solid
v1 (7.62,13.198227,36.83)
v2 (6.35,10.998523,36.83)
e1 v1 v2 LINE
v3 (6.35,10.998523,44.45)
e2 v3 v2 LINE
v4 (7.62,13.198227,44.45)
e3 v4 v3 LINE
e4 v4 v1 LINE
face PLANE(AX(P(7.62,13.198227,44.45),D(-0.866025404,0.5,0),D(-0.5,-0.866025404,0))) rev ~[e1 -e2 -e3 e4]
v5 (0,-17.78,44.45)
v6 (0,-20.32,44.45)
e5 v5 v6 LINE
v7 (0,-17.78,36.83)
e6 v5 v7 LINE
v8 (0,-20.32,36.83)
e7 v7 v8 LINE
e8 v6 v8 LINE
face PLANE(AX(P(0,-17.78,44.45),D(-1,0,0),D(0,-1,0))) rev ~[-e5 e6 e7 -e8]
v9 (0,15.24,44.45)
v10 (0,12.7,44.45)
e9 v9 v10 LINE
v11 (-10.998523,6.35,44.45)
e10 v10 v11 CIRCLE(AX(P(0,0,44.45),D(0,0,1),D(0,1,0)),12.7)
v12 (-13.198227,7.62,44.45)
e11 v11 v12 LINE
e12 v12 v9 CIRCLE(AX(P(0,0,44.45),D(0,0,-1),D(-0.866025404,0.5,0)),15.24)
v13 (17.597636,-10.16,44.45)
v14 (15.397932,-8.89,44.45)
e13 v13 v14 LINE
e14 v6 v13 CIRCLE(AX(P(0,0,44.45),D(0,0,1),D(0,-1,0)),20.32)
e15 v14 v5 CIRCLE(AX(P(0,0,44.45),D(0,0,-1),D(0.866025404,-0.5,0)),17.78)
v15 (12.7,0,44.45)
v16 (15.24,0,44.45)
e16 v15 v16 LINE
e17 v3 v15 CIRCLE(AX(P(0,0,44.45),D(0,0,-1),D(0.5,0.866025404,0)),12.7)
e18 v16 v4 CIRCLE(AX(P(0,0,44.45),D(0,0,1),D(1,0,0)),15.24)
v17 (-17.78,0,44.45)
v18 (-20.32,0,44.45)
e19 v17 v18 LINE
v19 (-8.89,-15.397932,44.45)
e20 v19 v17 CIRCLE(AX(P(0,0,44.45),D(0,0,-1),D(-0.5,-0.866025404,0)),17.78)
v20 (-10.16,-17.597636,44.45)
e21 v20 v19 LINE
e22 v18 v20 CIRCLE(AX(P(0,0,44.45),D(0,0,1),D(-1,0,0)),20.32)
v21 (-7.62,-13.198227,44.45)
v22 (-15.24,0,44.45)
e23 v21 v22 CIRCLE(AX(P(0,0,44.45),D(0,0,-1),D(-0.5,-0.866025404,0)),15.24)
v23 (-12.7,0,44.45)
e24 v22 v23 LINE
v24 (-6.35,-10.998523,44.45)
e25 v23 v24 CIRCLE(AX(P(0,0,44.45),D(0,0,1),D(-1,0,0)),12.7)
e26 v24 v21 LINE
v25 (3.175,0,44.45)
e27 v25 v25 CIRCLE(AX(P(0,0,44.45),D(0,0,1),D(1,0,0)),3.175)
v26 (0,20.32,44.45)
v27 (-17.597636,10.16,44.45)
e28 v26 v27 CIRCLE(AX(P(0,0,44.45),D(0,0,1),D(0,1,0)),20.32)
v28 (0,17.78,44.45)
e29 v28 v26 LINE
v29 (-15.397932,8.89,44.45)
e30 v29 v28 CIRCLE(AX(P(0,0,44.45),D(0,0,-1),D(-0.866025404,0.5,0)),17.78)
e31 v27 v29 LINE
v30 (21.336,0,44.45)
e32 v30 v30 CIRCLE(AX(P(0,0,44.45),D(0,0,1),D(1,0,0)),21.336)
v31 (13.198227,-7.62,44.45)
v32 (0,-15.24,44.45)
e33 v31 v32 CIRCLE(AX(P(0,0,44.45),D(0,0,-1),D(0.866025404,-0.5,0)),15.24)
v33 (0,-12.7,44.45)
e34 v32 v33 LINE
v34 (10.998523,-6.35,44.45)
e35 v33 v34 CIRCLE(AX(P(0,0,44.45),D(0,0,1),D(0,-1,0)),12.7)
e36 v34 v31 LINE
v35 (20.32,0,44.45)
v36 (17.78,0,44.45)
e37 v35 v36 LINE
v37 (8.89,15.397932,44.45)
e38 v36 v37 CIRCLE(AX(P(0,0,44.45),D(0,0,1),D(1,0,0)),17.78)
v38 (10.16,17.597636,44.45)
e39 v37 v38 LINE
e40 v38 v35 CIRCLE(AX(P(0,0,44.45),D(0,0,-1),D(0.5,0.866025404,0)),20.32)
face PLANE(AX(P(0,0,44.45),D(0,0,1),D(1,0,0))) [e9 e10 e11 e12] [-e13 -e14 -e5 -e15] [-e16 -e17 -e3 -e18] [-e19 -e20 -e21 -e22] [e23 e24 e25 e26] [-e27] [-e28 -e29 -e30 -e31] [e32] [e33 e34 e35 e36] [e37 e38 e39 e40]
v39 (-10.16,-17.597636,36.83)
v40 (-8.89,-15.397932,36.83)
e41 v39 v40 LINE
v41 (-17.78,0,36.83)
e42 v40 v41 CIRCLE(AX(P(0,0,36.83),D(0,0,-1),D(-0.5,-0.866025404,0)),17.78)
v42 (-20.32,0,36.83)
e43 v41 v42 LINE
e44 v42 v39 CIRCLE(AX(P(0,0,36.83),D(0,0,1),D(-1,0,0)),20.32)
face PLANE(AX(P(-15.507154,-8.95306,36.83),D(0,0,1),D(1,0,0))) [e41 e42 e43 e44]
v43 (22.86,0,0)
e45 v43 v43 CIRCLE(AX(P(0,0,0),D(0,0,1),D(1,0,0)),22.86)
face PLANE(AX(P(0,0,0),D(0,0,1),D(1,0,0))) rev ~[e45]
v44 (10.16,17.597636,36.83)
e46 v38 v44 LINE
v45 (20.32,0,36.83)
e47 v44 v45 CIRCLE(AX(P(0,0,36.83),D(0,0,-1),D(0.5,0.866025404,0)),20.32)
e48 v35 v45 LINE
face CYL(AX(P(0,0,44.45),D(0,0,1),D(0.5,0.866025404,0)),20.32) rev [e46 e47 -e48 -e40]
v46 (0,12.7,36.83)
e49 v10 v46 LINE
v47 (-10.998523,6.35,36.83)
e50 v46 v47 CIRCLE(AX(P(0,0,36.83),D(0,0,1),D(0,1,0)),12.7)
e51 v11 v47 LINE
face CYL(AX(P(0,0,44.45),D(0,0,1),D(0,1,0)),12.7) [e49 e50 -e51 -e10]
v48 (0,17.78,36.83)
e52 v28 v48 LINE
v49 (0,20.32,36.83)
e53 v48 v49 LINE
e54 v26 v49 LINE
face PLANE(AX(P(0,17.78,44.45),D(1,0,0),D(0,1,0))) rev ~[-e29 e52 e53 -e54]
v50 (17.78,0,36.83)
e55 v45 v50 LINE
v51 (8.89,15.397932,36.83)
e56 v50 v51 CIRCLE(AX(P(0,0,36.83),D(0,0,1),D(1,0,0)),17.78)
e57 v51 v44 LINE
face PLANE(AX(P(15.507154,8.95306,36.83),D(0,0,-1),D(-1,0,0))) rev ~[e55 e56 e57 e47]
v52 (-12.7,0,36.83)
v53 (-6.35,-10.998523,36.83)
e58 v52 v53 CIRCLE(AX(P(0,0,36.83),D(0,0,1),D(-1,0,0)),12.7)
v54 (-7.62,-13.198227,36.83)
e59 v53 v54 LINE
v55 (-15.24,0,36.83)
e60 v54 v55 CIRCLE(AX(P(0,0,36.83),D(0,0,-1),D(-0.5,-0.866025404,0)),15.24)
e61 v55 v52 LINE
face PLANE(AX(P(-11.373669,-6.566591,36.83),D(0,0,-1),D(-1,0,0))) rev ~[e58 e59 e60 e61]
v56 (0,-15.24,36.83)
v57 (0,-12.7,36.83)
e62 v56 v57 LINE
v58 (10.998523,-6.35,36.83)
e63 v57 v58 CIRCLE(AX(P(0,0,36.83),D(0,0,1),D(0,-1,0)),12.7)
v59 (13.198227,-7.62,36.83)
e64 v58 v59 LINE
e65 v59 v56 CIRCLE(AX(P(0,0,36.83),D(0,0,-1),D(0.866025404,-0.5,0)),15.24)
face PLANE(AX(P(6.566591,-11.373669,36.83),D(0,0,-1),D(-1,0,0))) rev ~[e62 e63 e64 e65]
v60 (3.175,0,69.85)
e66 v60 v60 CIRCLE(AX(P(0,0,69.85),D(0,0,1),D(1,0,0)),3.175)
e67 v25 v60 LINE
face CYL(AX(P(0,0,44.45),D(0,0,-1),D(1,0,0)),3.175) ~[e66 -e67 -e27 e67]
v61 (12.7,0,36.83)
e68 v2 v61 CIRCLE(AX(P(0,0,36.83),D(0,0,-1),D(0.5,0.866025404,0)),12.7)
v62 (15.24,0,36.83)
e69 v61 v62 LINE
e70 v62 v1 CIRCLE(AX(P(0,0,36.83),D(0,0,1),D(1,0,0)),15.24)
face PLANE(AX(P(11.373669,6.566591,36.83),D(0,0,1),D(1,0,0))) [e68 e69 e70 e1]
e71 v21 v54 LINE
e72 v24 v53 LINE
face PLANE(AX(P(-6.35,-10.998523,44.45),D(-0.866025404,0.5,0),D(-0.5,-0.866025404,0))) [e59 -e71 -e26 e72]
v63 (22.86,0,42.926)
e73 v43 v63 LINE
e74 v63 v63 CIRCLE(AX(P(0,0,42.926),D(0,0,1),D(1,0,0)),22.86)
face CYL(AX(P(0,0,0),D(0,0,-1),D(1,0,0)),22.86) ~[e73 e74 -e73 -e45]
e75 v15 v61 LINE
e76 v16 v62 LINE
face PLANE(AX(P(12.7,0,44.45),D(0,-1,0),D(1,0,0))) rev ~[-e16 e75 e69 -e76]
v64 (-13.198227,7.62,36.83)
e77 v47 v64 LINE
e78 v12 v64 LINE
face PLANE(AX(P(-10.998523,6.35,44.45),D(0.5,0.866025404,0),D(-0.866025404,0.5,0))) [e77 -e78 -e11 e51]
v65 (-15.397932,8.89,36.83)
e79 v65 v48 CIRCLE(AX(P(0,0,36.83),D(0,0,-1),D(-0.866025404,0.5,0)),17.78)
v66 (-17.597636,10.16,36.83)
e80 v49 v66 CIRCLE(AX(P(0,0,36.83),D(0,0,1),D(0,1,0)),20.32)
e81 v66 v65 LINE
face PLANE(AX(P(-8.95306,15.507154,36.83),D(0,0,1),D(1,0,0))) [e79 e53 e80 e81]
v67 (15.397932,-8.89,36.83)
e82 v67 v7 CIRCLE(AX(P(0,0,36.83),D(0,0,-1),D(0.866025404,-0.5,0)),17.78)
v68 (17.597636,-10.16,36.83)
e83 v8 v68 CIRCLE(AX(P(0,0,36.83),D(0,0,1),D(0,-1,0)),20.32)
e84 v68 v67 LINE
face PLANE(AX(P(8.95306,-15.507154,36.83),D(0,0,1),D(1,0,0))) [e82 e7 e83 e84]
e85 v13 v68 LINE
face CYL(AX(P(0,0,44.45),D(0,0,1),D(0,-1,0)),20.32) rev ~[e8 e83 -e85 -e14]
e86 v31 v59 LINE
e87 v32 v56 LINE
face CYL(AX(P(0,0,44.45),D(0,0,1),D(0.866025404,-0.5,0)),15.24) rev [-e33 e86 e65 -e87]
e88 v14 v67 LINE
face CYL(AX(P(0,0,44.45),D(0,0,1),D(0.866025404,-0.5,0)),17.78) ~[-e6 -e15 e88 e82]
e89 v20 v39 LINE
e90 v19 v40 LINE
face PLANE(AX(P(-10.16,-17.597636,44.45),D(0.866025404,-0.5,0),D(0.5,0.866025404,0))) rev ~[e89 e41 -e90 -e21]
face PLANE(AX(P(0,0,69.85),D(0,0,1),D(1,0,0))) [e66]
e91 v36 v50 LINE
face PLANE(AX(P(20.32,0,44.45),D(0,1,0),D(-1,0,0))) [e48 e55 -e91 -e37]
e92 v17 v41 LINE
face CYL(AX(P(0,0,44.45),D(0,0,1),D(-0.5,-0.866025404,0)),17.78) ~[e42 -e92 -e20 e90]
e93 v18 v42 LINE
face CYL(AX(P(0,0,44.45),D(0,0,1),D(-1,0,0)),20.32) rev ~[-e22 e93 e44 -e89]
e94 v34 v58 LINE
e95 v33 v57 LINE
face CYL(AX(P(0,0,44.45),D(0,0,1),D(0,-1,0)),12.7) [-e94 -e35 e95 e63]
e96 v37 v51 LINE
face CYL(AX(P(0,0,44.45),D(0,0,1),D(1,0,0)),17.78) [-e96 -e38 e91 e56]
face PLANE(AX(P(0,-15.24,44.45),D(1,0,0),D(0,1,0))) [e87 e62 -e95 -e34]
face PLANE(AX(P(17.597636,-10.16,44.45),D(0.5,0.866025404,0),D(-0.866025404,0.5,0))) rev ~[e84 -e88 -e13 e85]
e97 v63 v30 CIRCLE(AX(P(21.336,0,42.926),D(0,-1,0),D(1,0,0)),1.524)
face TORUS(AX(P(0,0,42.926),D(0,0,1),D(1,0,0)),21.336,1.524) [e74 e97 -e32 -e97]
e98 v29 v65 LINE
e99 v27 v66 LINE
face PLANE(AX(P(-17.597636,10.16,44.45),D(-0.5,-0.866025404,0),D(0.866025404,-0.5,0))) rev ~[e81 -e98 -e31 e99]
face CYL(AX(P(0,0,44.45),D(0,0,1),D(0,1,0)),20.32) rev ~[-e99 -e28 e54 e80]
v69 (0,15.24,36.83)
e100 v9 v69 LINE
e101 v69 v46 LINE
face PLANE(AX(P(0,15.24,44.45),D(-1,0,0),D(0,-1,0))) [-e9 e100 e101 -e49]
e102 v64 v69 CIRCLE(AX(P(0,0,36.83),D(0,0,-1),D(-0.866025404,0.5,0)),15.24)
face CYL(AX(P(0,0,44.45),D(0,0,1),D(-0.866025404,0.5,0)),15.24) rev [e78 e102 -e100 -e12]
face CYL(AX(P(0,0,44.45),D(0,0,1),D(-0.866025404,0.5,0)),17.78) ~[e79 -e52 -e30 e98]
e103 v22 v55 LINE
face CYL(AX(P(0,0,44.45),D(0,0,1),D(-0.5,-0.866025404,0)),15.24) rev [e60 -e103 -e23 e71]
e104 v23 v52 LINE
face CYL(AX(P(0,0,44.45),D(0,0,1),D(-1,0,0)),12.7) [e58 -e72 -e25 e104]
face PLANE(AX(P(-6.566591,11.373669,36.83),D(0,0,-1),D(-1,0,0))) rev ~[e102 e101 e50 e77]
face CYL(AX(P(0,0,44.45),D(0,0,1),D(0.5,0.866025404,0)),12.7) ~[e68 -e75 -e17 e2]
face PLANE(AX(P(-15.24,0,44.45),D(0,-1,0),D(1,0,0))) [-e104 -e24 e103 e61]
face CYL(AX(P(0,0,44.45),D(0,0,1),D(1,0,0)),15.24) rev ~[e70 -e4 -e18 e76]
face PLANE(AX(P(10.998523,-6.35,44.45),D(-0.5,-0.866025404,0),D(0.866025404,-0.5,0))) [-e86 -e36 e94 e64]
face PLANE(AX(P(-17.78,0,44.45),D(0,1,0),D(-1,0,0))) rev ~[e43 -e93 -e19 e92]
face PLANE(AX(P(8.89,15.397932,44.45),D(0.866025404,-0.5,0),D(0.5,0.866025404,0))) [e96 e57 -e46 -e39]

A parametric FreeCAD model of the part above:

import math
import FreeCAD as App
import Part
import Sketcher
Q = App.Units.Quantity


def edges_at(feature, points):
    """Names of the edges that pass closest to the given points."""
    edges = feature.Shape.Edges
    near = lambda p: min(range(len(edges)), key=lambda i: edges[i].distToShape(Part.Vertex(*p))[0])
    return sorted({f"Edge{near(p) + 1}" for p in points})

doc = App.newDocument("Part")
body = doc.addObject("PartDesign::Body", "Body")

sketch1 = doc.addObject("Sketcher::SketchObject", "Sketch")
body.addObject(sketch1)
sketch1.AttachmentSupport = (doc.XY_Plane, [""])
sketch1.MapMode = "FlatFace"
sketch1.addGeometry(Part.Circle(App.Vector(0, 0, 0), App.Vector(0, 0, 1), 22.86), False)
sketch1.addConstraint([
    Sketcher.Constraint("Coincident", 0, 3, -1, 1),
    Sketcher.Constraint("Diameter", 0, Q("1.8 in")),
])
pad1 = doc.addObject("PartDesign::Pad", "Pad")
body.addObject(pad1)
pad1.Profile = sketch1
pad1.Length = Q("1.75 in")

sketch2 = doc.addObject("Sketcher::SketchObject", "Sketch001")
body.addObject(sketch2)
sketch2.AttachmentSupport = (doc.XY_Plane, [""])
sketch2.MapMode = "FlatFace"
sketch2.AttachmentOffset = App.Placement(App.Vector(0, 0, 1.75 * 25.4), App.Rotation())
sketch2.addGeometry(Part.Circle(App.Vector(0, 0, 0), App.Vector(0, 0, 1), 3.175), False)
sketch2.addConstraint([
    Sketcher.Constraint("Coincident", 0, 3, -1, 1),
    Sketcher.Constraint("Diameter", 0, Q("0.25 in")),
])
pad2 = doc.addObject("PartDesign::Pad", "Pad001")
body.addObject(pad2)
pad2.Profile = sketch2
pad2.Length = Q("1 in")

sketch3 = doc.addObject("Sketcher::SketchObject", "Sketch002")
body.addObject(sketch3)
sketch3.AttachmentSupport = (doc.XY_Plane, [""])
sketch3.MapMode = "FlatFace"
sketch3.AttachmentOffset = App.Placement(App.Vector(0, 0, 1.75 * 25.4), App.Rotation())
sketch3.addGeometry([
    Part.LineSegment(App.Vector(12.7, 0, 0), App.Vector(15.24, 0, 0)),
    Part.ArcOfCircle(Part.Circle(App.Vector(0, 0, 0), App.Vector(0, 0, 1), 15.24), math.radians(0), math.radians(60)),
    Part.LineSegment(App.Vector(7.62, 13.198227, 0), App.Vector(6.35, 10.998523, 0)),
    Part.ArcOfCircle(Part.Circle(App.Vector(0, 0, 0), App.Vector(0, 0, 1), 12.7), math.radians(0), math.radians(60)),
    Part.LineSegment(App.Vector(10.16, 17.597636, 0), App.Vector(8.89, 15.397932, 0)),
    Part.ArcOfCircle(Part.Circle(App.Vector(0, 0, 0), App.Vector(0, 0, 1), 17.78), math.radians(0), math.radians(60)),
    Part.LineSegment(App.Vector(17.78, 0, 0), App.Vector(20.32, 0, 0)),
    Part.ArcOfCircle(Part.Circle(App.Vector(0, 0, 0), App.Vector(0, 0, 1), 20.32), math.radians(0), math.radians(60)),
    Part.LineSegment(App.Vector(13.198227, -7.62, 0), App.Vector(10.998523, -6.35, 0)),
    Part.ArcOfCircle(Part.Circle(App.Vector(0, 0, 0), App.Vector(0, 0, 1), 12.7), math.radians(-90), math.radians(-30)),
    Part.LineSegment(App.Vector(0, -12.7, 0), App.Vector(0, -15.24, 0)),
    Part.ArcOfCircle(Part.Circle(App.Vector(0, 0, 0), App.Vector(0, 0, 1), 15.24), math.radians(-90), math.radians(-30)),
    Part.LineSegment(App.Vector(0, -17.78, 0), App.Vector(0, -20.32, 0)),
    Part.ArcOfCircle(Part.Circle(App.Vector(0, 0, 0), App.Vector(0, 0, 1), 20.32), math.radians(-90), math.radians(-30)),
    Part.LineSegment(App.Vector(17.597636, -10.16, 0), App.Vector(15.397932, -8.89, 0)),
    Part.ArcOfCircle(Part.Circle(App.Vector(0, 0, 0), App.Vector(0, 0, 1), 17.78), math.radians(-90), math.radians(-30)),
    Part.LineSegment(App.Vector(-7.62, -13.198227, 0), App.Vector(-6.35, -10.998523, 0)),
    Part.ArcOfCircle(Part.Circle(App.Vector(0, 0, 0), App.Vector(0, 0, 1), 12.7), math.radians(180), math.radians(240)),
    Part.LineSegment(App.Vector(-12.7, 0, 0), App.Vector(-15.24, 0, 0)),
    Part.ArcOfCircle(Part.Circle(App.Vector(0, 0, 0), App.Vector(0, 0, 1), 15.24), math.radians(180), math.radians(240)),
    Part.LineSegment(App.Vector(-17.78, 0, 0), App.Vector(-20.32, 0, 0)),
    Part.ArcOfCircle(Part.Circle(App.Vector(0, 0, 0), App.Vector(0, 0, 1), 20.32), math.radians(180), math.radians(240)),
    Part.LineSegment(App.Vector(-10.16, -17.597636, 0), App.Vector(-8.89, -15.397932, 0)),
    Part.ArcOfCircle(Part.Circle(App.Vector(0, 0, 0), App.Vector(0, 0, 1), 17.78), math.radians(-180), math.radians(-120)),
    Part.LineSegment(App.Vector(-13.198227, 7.62, 0), App.Vector(-10.998523, 6.35, 0)),
    Part.ArcOfCircle(Part.Circle(App.Vector(0, 0, 0), App.Vector(0, 0, 1), 12.7), math.radians(90), math.radians(150)),
    Part.LineSegment(App.Vector(0, 12.7, 0), App.Vector(0, 15.24, 0)),
    Part.ArcOfCircle(Part.Circle(App.Vector(0, 0, 0), App.Vector(0, 0, 1), 15.24), math.radians(90), math.radians(150)),
    Part.LineSegment(App.Vector(0, 17.78, 0), App.Vector(0, 20.32, 0)),
    Part.ArcOfCircle(Part.Circle(App.Vector(0, 0, 0), App.Vector(0, 0, 1), 20.32), math.radians(90), math.radians(150)),
    Part.LineSegment(App.Vector(-17.597636, 10.16, 0), App.Vector(-15.397932, 8.89, 0)),
    Part.ArcOfCircle(Part.Circle(App.Vector(0, 0, 0), App.Vector(0, 0, 1), 17.78), math.radians(90), math.radians(150)),
], False)
sketch3.addConstraint([
    Sketcher.Constraint("Coincident", 0, 2, 1, 1),
    Sketcher.Constraint("Coincident", 1, 2, 2, 1),
    Sketcher.Constraint("Coincident", 2, 2, 3, 2),
    Sketcher.Constraint("Coincident", 3, 1, 0, 1),
    Sketcher.Constraint("Coincident", 4, 2, 5, 2),
    Sketcher.Constraint("Coincident", 5, 1, 6, 1),
    Sketcher.Constraint("Coincident", 6, 2, 7, 1),
    Sketcher.Constraint("Coincident", 7, 2, 4, 1),
    Sketcher.Constraint("Coincident", 8, 2, 9, 2),
    Sketcher.Constraint("Coincident", 9, 1, 10, 1),
    Sketcher.Constraint("Coincident", 10, 2, 11, 1),
    Sketcher.Constraint("Coincident", 11, 2, 8, 1),
    Sketcher.Constraint("Coincident", 12, 2, 13, 1),
    Sketcher.Constraint("Coincident", 13, 2, 14, 1),
    Sketcher.Constraint("Coincident", 14, 2, 15, 2),
    Sketcher.Constraint("Coincident", 15, 1, 12, 1),
    Sketcher.Constraint("Coincident", 16, 2, 17, 2),
    Sketcher.Constraint("Coincident", 17, 1, 18, 1),
    Sketcher.Constraint("Coincident", 18, 2, 19, 1),
    Sketcher.Constraint("Coincident", 19, 2, 16, 1),
    Sketcher.Constraint("Coincident", 20, 2, 21, 1),
    Sketcher.Constraint("Coincident", 21, 2, 22, 1),
    Sketcher.Constraint("Coincident", 22, 2, 23, 2),
    Sketcher.Constraint("Coincident", 23, 1, 20, 1),
    Sketcher.Constraint("Coincident", 24, 2, 25, 2),
    Sketcher.Constraint("Coincident", 25, 1, 26, 1),
    Sketcher.Constraint("Coincident", 26, 2, 27, 1),
    Sketcher.Constraint("Coincident", 27, 2, 24, 1),
    Sketcher.Constraint("Coincident", 28, 2, 29, 1),
    Sketcher.Constraint("Coincident", 29, 2, 30, 1),
    Sketcher.Constraint("Coincident", 30, 2, 31, 2),
    Sketcher.Constraint("Coincident", 31, 1, 28, 1),
    Sketcher.Constraint("Horizontal", 0),
    Sketcher.Constraint("Horizontal", 6),
    Sketcher.Constraint("Vertical", 10),
    Sketcher.Constraint("Vertical", 12),
    Sketcher.Constraint("Horizontal", 18),
    Sketcher.Constraint("Horizontal", 20),
    Sketcher.Constraint("Vertical", 26),
    Sketcher.Constraint("Vertical", 28),
    Sketcher.Constraint("Coincident", 1, 3, -1, 1),
    Sketcher.Constraint("Coincident", 3, 3, -1, 1),
    Sketcher.Constraint("Coincident", 5, 3, -1, 1),
    Sketcher.Constraint("Coincident", 7, 3, -1, 1),
    Sketcher.Constraint("Coincident", 9, 3, -1, 1),
    Sketcher.Constraint("Coincident", 11, 3, -1, 1),
    Sketcher.Constraint("Coincident", 13, 3, -1, 1),
    Sketcher.Constraint("Coincident", 15, 3, -1, 1),
    Sketcher.Constraint("Coincident", 17, 3, -1, 1),
    Sketcher.Constraint("Coincident", 19, 3, -1, 1),
    Sketcher.Constraint("Coincident", 21, 3, -1, 1),
    Sketcher.Constraint("Coincident", 23, 3, -1, 1),
    Sketcher.Constraint("Coincident", 25, 3, -1, 1),
    Sketcher.Constraint("Coincident", 27, 3, -1, 1),
    Sketcher.Constraint("Coincident", 29, 3, -1, 1),
    Sketcher.Constraint("Coincident", 31, 3, -1, 1),
    Sketcher.Constraint("Equal", 3, 9),
    Sketcher.Constraint("Equal", 1, 11),
    Sketcher.Constraint("Equal", 7, 13),
    Sketcher.Constraint("Equal", 5, 15),
    Sketcher.Constraint("Equal", 9, 17),
    Sketcher.Constraint("Equal", 11, 19),
    Sketcher.Constraint("Equal", 13, 21),
    Sketcher.Constraint("Equal", 15, 23),
    Sketcher.Constraint("Equal", 17, 25),
    Sketcher.Constraint("Equal", 19, 27),
    Sketcher.Constraint("Equal", 21, 29),
    Sketcher.Constraint("Equal", 23, 31),
    Sketcher.Constraint("PointOnObject", 0, 2, -1),
    Sketcher.Constraint("PointOnObject", 5, 1, -1),
    Sketcher.Constraint("PointOnObject", 9, 1, -2),
    Sketcher.Constraint("PointOnObject", 12, 2, -2),
    Sketcher.Constraint("PointOnObject", 17, 1, -1),
    Sketcher.Constraint("PointOnObject", 20, 2, -1),
    Sketcher.Constraint("PointOnObject", 25, 1, -2),
    Sketcher.Constraint("PointOnObject", 28, 2, -2),
    Sketcher.Constraint("Parallel", 2, 4),
    Sketcher.Constraint("Perpendicular", 4, 8),
    Sketcher.Constraint("Parallel", 8, 14),
    Sketcher.Constraint("Perpendicular", 14, 16),
    Sketcher.Constraint("Parallel", 16, 22),
    Sketcher.Constraint("Perpendicular", 22, 24),
    Sketcher.Constraint("Parallel", 24, 30),
    Sketcher.Constraint("Equal", 0, 6),
    Sketcher.Constraint("Radius", 1, Q("0.6 in")),
    Sketcher.Constraint("Radius", 3, Q("0.5 in")),
    Sketcher.Constraint("Radius", 5, Q("0.7 in")),
    Sketcher.Constraint("Angle", 2, Q("-120 deg")),
    Sketcher.Constraint("DistanceX", -1, 1, 1, 2, Q("0.3 in")),
    Sketcher.Constraint("DistanceX", -1, 1, 7, 2, Q("0.4 in")),
    Sketcher.Constraint("DistanceY", 11, 2, -1, 1, Q("0.3 in")),
    Sketcher.Constraint("DistanceY", 13, 2, -1, 1, Q("0.4 in")),
    Sketcher.Constraint("DistanceX", 19, 2, -1, 1, Q("0.3 in")),
    Sketcher.Constraint("DistanceX", 21, 2, -1, 1, Q("0.4 in")),
    Sketcher.Constraint("DistanceY", -1, 1, 27, 2, Q("0.3 in")),
    Sketcher.Constraint("DistanceY", -1, 1, 29, 2, Q("0.4 in")),
])
pocket1 = doc.addObject("PartDesign::Pocket", "Pocket")
body.addObject(pocket1)
pocket1.Profile = sketch3
pocket1.Length = Q("0.3 in")
doc.recompute()

fillet = doc.addObject("PartDesign::Fillet", "Fillet")
body.addObject(fillet)
fillet.Base = (pocket1, edges_at(pocket1, [(-22.86, 0, 44.45)]))
fillet.Radius = Q("0.06 in")

doc.recompute()
